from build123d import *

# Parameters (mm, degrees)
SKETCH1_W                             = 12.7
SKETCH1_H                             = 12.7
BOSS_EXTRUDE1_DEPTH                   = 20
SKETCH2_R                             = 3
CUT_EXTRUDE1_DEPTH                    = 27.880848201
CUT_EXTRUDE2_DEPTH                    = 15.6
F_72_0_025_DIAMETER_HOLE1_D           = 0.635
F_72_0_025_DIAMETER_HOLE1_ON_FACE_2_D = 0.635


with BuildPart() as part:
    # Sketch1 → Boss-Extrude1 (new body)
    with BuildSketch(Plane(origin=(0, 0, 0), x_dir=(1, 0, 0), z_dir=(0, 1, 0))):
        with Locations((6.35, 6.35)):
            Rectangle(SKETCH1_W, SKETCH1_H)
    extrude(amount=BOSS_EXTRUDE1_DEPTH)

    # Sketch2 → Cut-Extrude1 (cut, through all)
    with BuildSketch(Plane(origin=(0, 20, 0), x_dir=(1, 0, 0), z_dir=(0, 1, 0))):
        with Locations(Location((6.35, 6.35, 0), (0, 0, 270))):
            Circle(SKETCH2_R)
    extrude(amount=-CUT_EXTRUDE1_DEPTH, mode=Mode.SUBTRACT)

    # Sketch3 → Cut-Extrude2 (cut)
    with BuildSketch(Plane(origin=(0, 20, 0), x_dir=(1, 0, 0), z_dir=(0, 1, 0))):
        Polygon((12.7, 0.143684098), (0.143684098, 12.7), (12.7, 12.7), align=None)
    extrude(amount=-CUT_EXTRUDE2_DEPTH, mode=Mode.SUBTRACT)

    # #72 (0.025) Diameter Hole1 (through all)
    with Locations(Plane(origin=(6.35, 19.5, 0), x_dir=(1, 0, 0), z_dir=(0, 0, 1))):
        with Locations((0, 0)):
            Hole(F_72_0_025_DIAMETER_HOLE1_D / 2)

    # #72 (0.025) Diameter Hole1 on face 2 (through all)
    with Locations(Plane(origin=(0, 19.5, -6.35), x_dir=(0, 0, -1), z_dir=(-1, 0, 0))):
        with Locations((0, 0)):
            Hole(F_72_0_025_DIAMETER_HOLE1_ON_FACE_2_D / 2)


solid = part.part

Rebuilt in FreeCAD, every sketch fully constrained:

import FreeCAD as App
import Part
import Sketcher
Q = App.Units.Quantity

doc = App.newDocument("Part")
body = doc.addObject("PartDesign::Body", "Body")

# Sketch on XZ plane
sketch1 = doc.addObject("Sketcher::SketchObject", "Sketch")
body.addObject(sketch1)
sketch1.AttachmentSupport = (doc.XZ_Plane, [""])
sketch1.MapMode = "FlatFace"
sketch1.addGeometry([
    Part.LineSegment(App.Vector(0, -13, 0), App.Vector(0, 0, 0)),
    Part.LineSegment(App.Vector(0, 0, 0), App.Vector(13, 0, 0)),
    Part.LineSegment(App.Vector(13, 0, 0), App.Vector(13, -13, 0)),
    Part.LineSegment(App.Vector(13, -13, 0), App.Vector(0, -13, 0)),
], False)
sketch1.addConstraint([
    Sketcher.Constraint("Coincident", 0, 2, 1, 1),
    Sketcher.Constraint("Coincident", 1, 2, 2, 1),
    Sketcher.Constraint("Coincident", 2, 2, 3, 1),
    Sketcher.Constraint("Coincident", 3, 2, 0, 1),
    Sketcher.Constraint("Vertical", 0),
    Sketcher.Constraint("Horizontal", 1),
    Sketcher.Constraint("Vertical", 2),
    Sketcher.Constraint("Horizontal", 3),
    Sketcher.Constraint("Coincident", 0, 2, -1, 1),
    Sketcher.Constraint("Equal", 3, 0),
    Sketcher.Constraint("DistanceX", 1, 1, 1, 2, Q("12.7 mm")),
])
pad1 = doc.addObject("PartDesign::Pad", "Pad")
body.addObject(pad1)
pad1.Profile = sketch1
pad1.Length = 20
pad1.Reversed = True

# Sketch on XZ plane
sketch2 = doc.addObject("Sketcher::SketchObject", "Sketch001")
body.addObject(sketch2)
sketch2.AttachmentSupport = (doc.XZ_Plane, [""])
sketch2.MapMode = "FlatFace"
sketch2.AttachmentOffset = App.Placement(App.Vector(0, 0, -20), App.Rotation())
sketch2.addGeometry(Part.Circle(App.Vector(6.3, -6.3, 0), App.Vector(0, 0, 1), 3), False)
sketch2.addConstraint([
    Sketcher.Constraint("Diameter", 0, Q("6 mm")),
    Sketcher.Constraint("DistanceX", -1, 1, 0, 3, Q("6.35 mm")),
    Sketcher.Constraint("DistanceY", 0, 3, -1, 1, Q("6.35 mm")),
])
pocket1 = doc.addObject("PartDesign::Pocket", "Pocket")
body.addObject(pocket1)
pocket1.Profile = sketch2
pocket1.Type = "ThroughAll"
pocket1.Reversed = True

# Sketch on XZ plane
sketch3 = doc.addObject("Sketcher::SketchObject", "Sketch002")
body.addObject(sketch3)
sketch3.AttachmentSupport = (doc.XZ_Plane, [""])
sketch3.MapMode = "FlatFace"
sketch3.AttachmentOffset = App.Placement(App.Vector(0, 0, -20), App.Rotation())
sketch3.addGeometry([
    Part.LineSegment(App.Vector(0, -13, 0), App.Vector(13, 0, 0)),
    Part.LineSegment(App.Vector(13, 0, 0), App.Vector(13, -13, 0)),
    Part.LineSegment(App.Vector(13, -13, 0), App.Vector(0, -13, 0)),
], False)
sketch3.addConstraint([
    Sketcher.Constraint("Coincident", 0, 2, 1, 1),
    Sketcher.Constraint("Coincident", 1, 2, 2, 1),
    Sketcher.Constraint("Coincident", 2, 2, 0, 1),
    Sketcher.Constraint("Vertical", 1),
    Sketcher.Constraint("Horizontal", 2),
    Sketcher.Constraint("Equal", 2, 1),
    Sketcher.Constraint("DistanceX", -1, 1, 0, 2, Q("12.7 mm")),
    Sketcher.Constraint("DistanceY", 1, 2, -1, 1, Q("12.7 mm")),
    Sketcher.Constraint("DistanceX", 2, 2, 2, 1, Q("12.556316 mm")),
])
pocket2 = doc.addObject("PartDesign::Pocket", "Pocket001")
body.addObject(pocket2)
pocket2.Profile = sketch3
pocket2.Length = 15.6
pocket2.Reversed = True

# Sketch on XY plane
sketch4 = doc.addObject("Sketcher::SketchObject", "Sketch003")
body.addObject(sketch4)
sketch4.AttachmentSupport = (doc.XY_Plane, [""])
sketch4.MapMode = "FlatFace"
sketch4.addGeometry(Part.Circle(App.Vector(6.35, 19.5, 0), App.Vector(0, 0, 1), 0.32), False)
sketch4.addConstraint([
    Sketcher.Constraint("Diameter", 0, Q("0.635 mm")),
    Sketcher.Constraint("DistanceY", -1, 1, 0, 3, Q("19.5 mm")),
    Sketcher.Constraint("DistanceX", -1, 1, 0, 3, Q("6.35 mm")),
])
doc.recompute()
hole = doc.addObject("PartDesign::Hole", "Hole")
body.addObject(hole)
hole.Profile = sketch4
hole.ThreadType = "None"
hole.Diameter = 0.635
hole.DepthType = "ThroughAll"

# Sketch on YZ plane
sketch5 = doc.addObject("Sketcher::SketchObject", "Sketch004")
body.addObject(sketch5)
sketch5.AttachmentSupport = (doc.YZ_Plane, [""])
sketch5.MapMode = "FlatFace"
sketch5.addGeometry(Part.Circle(App.Vector(19.5, -6.35, 0), App.Vector(0, 0, 1), 0.32), False)
sketch5.addConstraint([
    Sketcher.Constraint("Diameter", 0, Q("0.635 mm")),
    Sketcher.Constraint("DistanceX", -1, 1, 0, 3, Q("19.5 mm")),
    Sketcher.Constraint("DistanceY", 0, 3, -1, 1, Q("6.35 mm")),
])
doc.recompute()
hole2 = doc.addObject("PartDesign::Hole", "Hole001")
body.addObject(hole2)
hole2.Profile = sketch5
hole2.ThreadType = "None"
hole2.Diameter = 0.635
hole2.DepthType = "ThroughAll"
hole2.Reversed = True

doc.recompute()
